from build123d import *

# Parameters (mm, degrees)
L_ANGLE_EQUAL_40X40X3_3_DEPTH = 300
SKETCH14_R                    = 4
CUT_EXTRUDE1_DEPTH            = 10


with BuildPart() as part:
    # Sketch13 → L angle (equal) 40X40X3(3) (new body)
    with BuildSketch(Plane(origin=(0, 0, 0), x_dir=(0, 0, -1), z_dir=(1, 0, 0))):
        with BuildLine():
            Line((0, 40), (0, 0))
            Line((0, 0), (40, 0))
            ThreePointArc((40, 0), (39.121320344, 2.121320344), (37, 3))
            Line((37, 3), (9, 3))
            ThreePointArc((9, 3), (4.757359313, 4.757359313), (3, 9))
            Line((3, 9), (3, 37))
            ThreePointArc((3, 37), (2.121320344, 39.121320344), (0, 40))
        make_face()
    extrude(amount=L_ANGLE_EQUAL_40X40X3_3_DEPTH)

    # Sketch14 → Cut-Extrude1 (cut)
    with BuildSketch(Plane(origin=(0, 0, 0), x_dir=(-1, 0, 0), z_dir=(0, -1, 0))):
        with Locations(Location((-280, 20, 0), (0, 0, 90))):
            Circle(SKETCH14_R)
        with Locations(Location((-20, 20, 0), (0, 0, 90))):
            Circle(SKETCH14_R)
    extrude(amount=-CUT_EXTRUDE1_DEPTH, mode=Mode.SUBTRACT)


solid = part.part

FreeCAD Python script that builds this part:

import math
import FreeCAD as App
import Part
import Sketcher
from FreeCAD import Vector

doc = App.newDocument("Part")
body = doc.addObject("PartDesign::Body", "Body")

sketch1 = body.newObject("Sketcher::SketchObject", "Sketch")
sketch1.AttachmentSupport = (doc.getObject("YZ_Plane"), [""])
sketch1.MapMode = "FlatFace"
sketch1.addGeometry([
    Part.LineSegment(Vector(40, 0, 0), Vector(0, 0, 0)),
    Part.LineSegment(Vector(0, 0, 0), Vector(0, -40, 0)),
    Part.ArcOfCircle(Part.Circle(Vector(0, -37, 0), Vector(0, 0, 1), 3), math.radians(-90), math.radians(0)),
    Part.LineSegment(Vector(3, -37, 0), Vector(3, -9, 0)),
    Part.ArcOfCircle(Part.Circle(Vector(9, -9, 0), Vector(0, 0, 1), 6), math.radians(90), math.radians(180)),
    Part.LineSegment(Vector(9, -3, 0), Vector(37, -3, 0)),
    Part.ArcOfCircle(Part.Circle(Vector(37, 0, 0), Vector(0, 0, 1), 3), math.radians(-90), math.radians(0)),
], False)
sketch1.addConstraint([
    Sketcher.Constraint("Coincident", 0, 2, 1, 1),
    Sketcher.Constraint("Coincident", 1, 2, 2, 1),
    Sketcher.Constraint("Tangent", 2, 2, 3, 1),
    Sketcher.Constraint("Tangent", 3, 2, 4, 2),
    Sketcher.Constraint("Tangent", 4, 1, 5, 1),
    Sketcher.Constraint("Tangent", 5, 2, 6, 1),
    Sketcher.Constraint("Coincident", 6, 2, 0, 1),
    Sketcher.Constraint("Horizontal", 0),
    Sketcher.Constraint("Vertical", 1),
    Sketcher.Constraint("Vertical", 3),
    Sketcher.Constraint("Horizontal", 5),
    Sketcher.Constraint("Coincident", 0, 2, -1, 1),
    Sketcher.Constraint("Equal", 2, 6),
    Sketcher.Constraint("PointOnObject", 2, 3, -2),
    Sketcher.Constraint("PointOnObject", 6, 3, -1),
    Sketcher.Constraint("Equal", 0, 1),
    Sketcher.Constraint("Radius", 2, 3.0),
    Sketcher.Constraint("Radius", 4, 6.0),
    Sketcher.Constraint("DistanceX", 0, 2, 0, 1, 40.0),
])
pad1 = body.newObject("PartDesign::Pad", "Pad")
pad1.Profile = sketch1
pad1.Length = 300

sketch2 = body.newObject("Sketcher::SketchObject", "Sketch001")
sketch2.AttachmentSupport = (doc.getObject("XZ_Plane"), [""])
sketch2.MapMode = "FlatFace"
sketch2.addGeometry([
    Part.Circle(Vector(280, -20, 0), Vector(0, 0, 1), 4),
    Part.Circle(Vector(20, -20, 0), Vector(0, 0, 1), 4),
], False)
sketch2.addConstraint([
    Sketcher.Constraint("Equal", 0, 1),
    Sketcher.Constraint("Horizontal", 0, 3, 1, 3),
    Sketcher.Constraint("Diameter", 0, 8.0),
    Sketcher.Constraint("DistanceX", -1, 1, 0, 3, 280.0),
    Sketcher.Constraint("DistanceY", 0, 3, -1, 1, 20.0),
    Sketcher.Constraint("DistanceX", -1, 1, 1, 3, 20.0),
])
pocket1 = body.newObject("PartDesign::Pocket", "Pocket")
pocket1.Profile = sketch2
pocket1.Length = 10

doc.recompute()
